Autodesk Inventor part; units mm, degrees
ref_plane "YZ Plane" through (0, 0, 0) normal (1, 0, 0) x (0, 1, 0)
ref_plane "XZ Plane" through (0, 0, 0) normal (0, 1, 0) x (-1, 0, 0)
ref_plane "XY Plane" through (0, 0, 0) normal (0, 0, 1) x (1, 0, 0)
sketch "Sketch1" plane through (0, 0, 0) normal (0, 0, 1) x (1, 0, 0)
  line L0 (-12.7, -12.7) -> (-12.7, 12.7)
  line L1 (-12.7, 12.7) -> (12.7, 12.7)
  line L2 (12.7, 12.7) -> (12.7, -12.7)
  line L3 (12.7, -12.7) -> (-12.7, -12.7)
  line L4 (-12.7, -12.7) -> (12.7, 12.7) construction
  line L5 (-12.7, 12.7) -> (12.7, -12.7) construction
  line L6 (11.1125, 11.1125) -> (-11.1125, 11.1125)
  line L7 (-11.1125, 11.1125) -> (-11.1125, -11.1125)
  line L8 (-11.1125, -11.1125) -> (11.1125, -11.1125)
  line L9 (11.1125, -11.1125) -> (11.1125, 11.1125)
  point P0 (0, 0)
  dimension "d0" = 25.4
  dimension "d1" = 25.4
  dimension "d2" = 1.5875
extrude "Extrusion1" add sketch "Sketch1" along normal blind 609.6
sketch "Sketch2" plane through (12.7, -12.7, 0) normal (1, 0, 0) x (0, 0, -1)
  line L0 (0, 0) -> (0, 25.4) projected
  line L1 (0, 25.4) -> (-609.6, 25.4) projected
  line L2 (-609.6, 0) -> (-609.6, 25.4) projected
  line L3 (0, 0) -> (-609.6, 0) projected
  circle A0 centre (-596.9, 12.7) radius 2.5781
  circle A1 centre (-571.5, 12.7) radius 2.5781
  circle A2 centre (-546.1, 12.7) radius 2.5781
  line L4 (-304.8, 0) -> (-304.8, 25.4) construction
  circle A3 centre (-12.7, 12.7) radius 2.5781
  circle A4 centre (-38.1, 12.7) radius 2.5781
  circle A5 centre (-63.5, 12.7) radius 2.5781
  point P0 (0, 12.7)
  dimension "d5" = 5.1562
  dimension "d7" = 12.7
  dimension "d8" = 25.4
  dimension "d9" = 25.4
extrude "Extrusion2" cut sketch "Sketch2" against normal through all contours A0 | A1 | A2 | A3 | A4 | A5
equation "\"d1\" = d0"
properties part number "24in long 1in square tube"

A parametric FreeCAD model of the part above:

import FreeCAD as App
import Part
import Sketcher

V = App.Vector
Q = App.Units.Quantity


def add_polygon(sketch, points):
    """Adds a closed chain of lines whose ends are joined by coincident constraints."""
    first, n = sketch.GeometryCount, len(points)
    for a, b in zip(points, points[1:] + points[:1]):
        sketch.addGeometry(Part.LineSegment(App.Vector(*a, 0), App.Vector(*b, 0)), False)
    for i in range(n):
        sketch.addConstraint(Sketcher.Constraint("Coincident", first + i, 2, first + (i + 1) % n, 1))

doc = App.newDocument("Part")
body = doc.addObject("PartDesign::Body", "Body")

# Sketch on XY plane
sketch1 = doc.addObject("Sketcher::SketchObject", "Sketch")
body.addObject(sketch1)
sketch1.AttachmentSupport = (doc.XY_Plane, [""])
sketch1.MapMode = "FlatFace"
add_polygon(sketch1, [(-13, 13), (-13, -13), (13, -13), (13, 13)])  # lines 0-3
add_polygon(sketch1, [(-11, 11), (11, 11), (11, -11), (-11, -11)])  # lines 4-7
sketch1.addConstraint(Sketcher.Constraint("Vertical", 0))
sketch1.addConstraint(Sketcher.Constraint("Horizontal", 1))
sketch1.addConstraint(Sketcher.Constraint("Vertical", 2))
sketch1.addConstraint(Sketcher.Constraint("Horizontal", 3))
sketch1.addConstraint(Sketcher.Constraint("Horizontal", 4))
sketch1.addConstraint(Sketcher.Constraint("Vertical", 5))
sketch1.addConstraint(Sketcher.Constraint("Horizontal", 6))
sketch1.addConstraint(Sketcher.Constraint("Vertical", 7))
sketch1.addConstraint(Sketcher.Constraint("Symmetric", 0, 2, 2, 2, -1, 1))
sketch1.addConstraint(Sketcher.Constraint("Symmetric", 4, 2, 6, 2, -1, 1))
sketch1.addConstraint(Sketcher.Constraint("Equal", 3, 0))
sketch1.addConstraint(Sketcher.Constraint("Equal", 6, 5))
sketch1.addConstraint(Sketcher.Constraint("DistanceX", 1, 1, 1, 2, Q("1 in")))
sketch1.addConstraint(Sketcher.Constraint("DistanceX", 4, 2, 2, 2, Q("0.0625 in")))
pad1 = doc.addObject("PartDesign::Pad", "Pad")
body.addObject(pad1)
pad1.Profile = sketch1
pad1.Length = Q("24 in")

# Sketch on YZ plane
sketch2 = doc.addObject("Sketcher::SketchObject", "Sketch001")
body.addObject(sketch2)
sketch2.AttachmentSupport = (doc.YZ_Plane, [""])
sketch2.MapMode = "FlatFace"
sketch2.AttachmentOffset = App.Placement(V(0, 0, 0.5 * 25.4), App.Rotation())
sketch2.addGeometry(Part.Circle(V(0, 596.9, 0), V(0, 0, 1), 2.6), False)
sketch2.addGeometry(Part.Circle(V(0, 571.5, 0), V(0, 0, 1), 2.6), False)
sketch2.addGeometry(Part.Circle(V(0, 546.1, 0), V(0, 0, 1), 2.6), False)
sketch2.addGeometry(Part.Circle(V(0, 12.7, 0), V(0, 0, 1), 2.6), False)
sketch2.addGeometry(Part.Circle(V(0, 38.1, 0), V(0, 0, 1), 2.6), False)
sketch2.addGeometry(Part.Circle(V(0, 63.5, 0), V(0, 0, 1), 2.6), False)
sketch2.addConstraint(Sketcher.Constraint("Equal", 0, 1))
sketch2.addConstraint(Sketcher.Constraint("Equal", 1, 2))
sketch2.addConstraint(Sketcher.Constraint("Equal", 2, 3))
sketch2.addConstraint(Sketcher.Constraint("Equal", 3, 4))
sketch2.addConstraint(Sketcher.Constraint("Equal", 4, 5))
sketch2.addConstraint(Sketcher.Constraint("PointOnObject", 0, 3, -2))
sketch2.addConstraint(Sketcher.Constraint("PointOnObject", 1, 3, -2))
sketch2.addConstraint(Sketcher.Constraint("PointOnObject", 2, 3, -2))
sketch2.addConstraint(Sketcher.Constraint("PointOnObject", 3, 3, -2))
sketch2.addConstraint(Sketcher.Constraint("PointOnObject", 4, 3, -2))
sketch2.addConstraint(Sketcher.Constraint("PointOnObject", 5, 3, -2))
sketch2.addConstraint(Sketcher.Constraint("Diameter", 0, Q("0.203 in")))
sketch2.addConstraint(Sketcher.Constraint("DistanceY", 1, 3, 0, 3, Q("1 in")))
sketch2.addConstraint(Sketcher.Constraint("DistanceY", 2, 3, 1, 3, Q("1 in")))
sketch2.addConstraint(Sketcher.Constraint("DistanceY", 3, 3, 4, 3, Q("1 in")))
sketch2.addConstraint(Sketcher.Constraint("DistanceY", 4, 3, 5, 3, Q("1 in")))
sketch2.addConstraint(Sketcher.Constraint("DistanceY", -1, 1, 3, 3, Q("0.5 in")))
sketch2.addConstraint(Sketcher.Constraint("DistanceY", 3, 3, 2, 3, Q("21 in")))
pocket1 = doc.addObject("PartDesign::Pocket", "Pocket")
body.addObject(pocket1)
pocket1.Profile = sketch2
pocket1.Type = "ThroughAll"

doc.recompute()
